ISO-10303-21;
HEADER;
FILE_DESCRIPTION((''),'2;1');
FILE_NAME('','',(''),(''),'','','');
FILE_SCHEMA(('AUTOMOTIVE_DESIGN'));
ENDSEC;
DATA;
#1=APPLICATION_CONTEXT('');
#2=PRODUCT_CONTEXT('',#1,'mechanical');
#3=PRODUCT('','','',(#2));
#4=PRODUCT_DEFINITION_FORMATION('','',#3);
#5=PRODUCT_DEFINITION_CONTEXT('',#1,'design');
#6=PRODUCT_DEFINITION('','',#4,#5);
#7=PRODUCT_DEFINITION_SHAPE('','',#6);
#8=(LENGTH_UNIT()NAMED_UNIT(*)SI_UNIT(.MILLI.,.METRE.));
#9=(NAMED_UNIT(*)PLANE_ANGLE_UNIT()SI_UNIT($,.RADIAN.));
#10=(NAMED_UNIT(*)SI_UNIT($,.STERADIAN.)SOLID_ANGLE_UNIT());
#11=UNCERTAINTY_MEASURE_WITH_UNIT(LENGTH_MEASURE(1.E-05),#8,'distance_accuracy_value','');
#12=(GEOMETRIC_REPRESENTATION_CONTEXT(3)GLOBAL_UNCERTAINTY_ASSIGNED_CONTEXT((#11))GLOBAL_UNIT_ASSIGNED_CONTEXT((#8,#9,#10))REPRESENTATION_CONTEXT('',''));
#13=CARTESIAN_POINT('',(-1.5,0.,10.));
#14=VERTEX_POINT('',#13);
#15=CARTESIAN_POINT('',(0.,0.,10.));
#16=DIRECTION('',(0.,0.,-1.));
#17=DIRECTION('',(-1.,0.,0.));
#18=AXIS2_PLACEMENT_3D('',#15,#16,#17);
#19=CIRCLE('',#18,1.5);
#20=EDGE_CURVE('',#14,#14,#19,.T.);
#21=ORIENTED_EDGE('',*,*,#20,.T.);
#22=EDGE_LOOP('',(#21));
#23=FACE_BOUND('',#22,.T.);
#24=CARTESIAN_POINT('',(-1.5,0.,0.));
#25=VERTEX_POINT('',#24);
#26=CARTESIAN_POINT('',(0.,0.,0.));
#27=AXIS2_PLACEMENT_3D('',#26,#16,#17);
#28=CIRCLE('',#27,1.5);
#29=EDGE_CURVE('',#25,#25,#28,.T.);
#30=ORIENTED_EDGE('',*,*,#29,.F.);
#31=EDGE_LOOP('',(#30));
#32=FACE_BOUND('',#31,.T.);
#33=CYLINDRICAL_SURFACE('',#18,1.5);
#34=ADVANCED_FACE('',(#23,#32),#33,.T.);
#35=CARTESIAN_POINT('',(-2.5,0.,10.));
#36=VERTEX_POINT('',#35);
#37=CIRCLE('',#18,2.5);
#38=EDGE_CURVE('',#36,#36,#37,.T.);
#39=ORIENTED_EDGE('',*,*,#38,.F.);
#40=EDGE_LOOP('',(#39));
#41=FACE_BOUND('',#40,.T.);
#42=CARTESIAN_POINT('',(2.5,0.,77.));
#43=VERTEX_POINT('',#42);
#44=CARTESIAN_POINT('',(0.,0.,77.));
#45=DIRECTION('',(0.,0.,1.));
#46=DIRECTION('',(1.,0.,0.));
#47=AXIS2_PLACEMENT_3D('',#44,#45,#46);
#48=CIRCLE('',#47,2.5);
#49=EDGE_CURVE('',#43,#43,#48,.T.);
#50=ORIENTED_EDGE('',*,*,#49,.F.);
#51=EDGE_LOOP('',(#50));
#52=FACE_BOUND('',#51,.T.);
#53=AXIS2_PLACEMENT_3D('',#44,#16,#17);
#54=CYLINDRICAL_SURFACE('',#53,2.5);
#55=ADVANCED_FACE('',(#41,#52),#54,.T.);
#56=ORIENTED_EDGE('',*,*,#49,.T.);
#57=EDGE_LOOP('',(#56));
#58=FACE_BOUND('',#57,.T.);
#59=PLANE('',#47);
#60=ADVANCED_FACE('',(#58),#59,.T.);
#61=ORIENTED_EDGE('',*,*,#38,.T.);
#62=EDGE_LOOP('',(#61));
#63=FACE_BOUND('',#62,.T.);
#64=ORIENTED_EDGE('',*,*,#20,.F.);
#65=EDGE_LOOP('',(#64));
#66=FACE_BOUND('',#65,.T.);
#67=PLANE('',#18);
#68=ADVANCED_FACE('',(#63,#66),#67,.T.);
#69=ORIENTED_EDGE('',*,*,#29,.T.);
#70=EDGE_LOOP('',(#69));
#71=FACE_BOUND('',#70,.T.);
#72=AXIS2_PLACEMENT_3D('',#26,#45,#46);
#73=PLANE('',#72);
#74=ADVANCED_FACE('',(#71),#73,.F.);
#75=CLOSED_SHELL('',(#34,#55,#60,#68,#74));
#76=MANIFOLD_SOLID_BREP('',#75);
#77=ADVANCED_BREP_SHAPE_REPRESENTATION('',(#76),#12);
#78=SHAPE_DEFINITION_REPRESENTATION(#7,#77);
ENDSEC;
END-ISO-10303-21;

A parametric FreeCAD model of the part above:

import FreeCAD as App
import Part
import Sketcher
from FreeCAD import Vector
Q = App.Units.Quantity

doc = App.newDocument("Part")
params = doc.addObject("Spreadsheet::Sheet", "Params")
for row, (alias, value) in enumerate([
    ("sketch1_diameter", "5 mm"),
    ("pad1_length", "77 mm"),
    ("sketch2_diameter", "5 mm"),
    ("sketch2_diameter2", "3 mm"),
    ("pocket1_length", "10 mm"),
], start=1):
    params.set(f"A{row}", alias)
    params.set(f"B{row}", "=" + value)
    params.setAlias(f"B{row}", alias)

body = doc.addObject("PartDesign::Body", "Body")

# Sketch on XY plane
sketch1 = body.newObject("Sketcher::SketchObject", "Sketch")
sketch1.AttachmentSupport = (doc.getObject("XY_Plane"), [""])
sketch1.MapMode = "FlatFace"
sketch1.addGeometry(Part.Circle(Vector(0, 0, 0), Vector(0, 0, 1), 2.5), False)
sketch1.addConstraint([
    Sketcher.Constraint("Coincident", 0, 3, -1, 1),
    Sketcher.Constraint("Diameter", 0, Q("5 mm")),
])
sketch1.setExpression("Constraints[1]", "Params.sketch1_diameter")
pad1 = body.newObject("PartDesign::Pad", "Pad")
pad1.Profile = sketch1
pad1.setExpression("Length", "Params.pad1_length")

# Sketch on XY plane
sketch2 = body.newObject("Sketcher::SketchObject", "Sketch001")
sketch2.AttachmentSupport = (doc.getObject("XY_Plane"), [""])
sketch2.MapMode = "FlatFace"
sketch2.addGeometry([
    Part.Circle(Vector(0, 0, 0), Vector(0, 0, 1), 2.5),
    Part.Circle(Vector(0, 0, 0), Vector(0, 0, 1), 1.5),
], False)
sketch2.addConstraint([
    Sketcher.Constraint("Coincident", 0, 3, -1, 1),
    Sketcher.Constraint("Coincident", 1, 3, -1, 1),
    Sketcher.Constraint("Diameter", 0, Q("5 mm")),
    Sketcher.Constraint("Diameter", 1, Q("3 mm")),
])
sketch2.setExpression("Constraints[2]", "Params.sketch2_diameter")
sketch2.setExpression("Constraints[3]", "Params.sketch2_diameter2")
pocket1 = body.newObject("PartDesign::Pocket", "Pocket")
pocket1.Profile = sketch2
pocket1.setExpression("Length", "Params.pocket1_length")
pocket1.Reversed = True

doc.recompute()
